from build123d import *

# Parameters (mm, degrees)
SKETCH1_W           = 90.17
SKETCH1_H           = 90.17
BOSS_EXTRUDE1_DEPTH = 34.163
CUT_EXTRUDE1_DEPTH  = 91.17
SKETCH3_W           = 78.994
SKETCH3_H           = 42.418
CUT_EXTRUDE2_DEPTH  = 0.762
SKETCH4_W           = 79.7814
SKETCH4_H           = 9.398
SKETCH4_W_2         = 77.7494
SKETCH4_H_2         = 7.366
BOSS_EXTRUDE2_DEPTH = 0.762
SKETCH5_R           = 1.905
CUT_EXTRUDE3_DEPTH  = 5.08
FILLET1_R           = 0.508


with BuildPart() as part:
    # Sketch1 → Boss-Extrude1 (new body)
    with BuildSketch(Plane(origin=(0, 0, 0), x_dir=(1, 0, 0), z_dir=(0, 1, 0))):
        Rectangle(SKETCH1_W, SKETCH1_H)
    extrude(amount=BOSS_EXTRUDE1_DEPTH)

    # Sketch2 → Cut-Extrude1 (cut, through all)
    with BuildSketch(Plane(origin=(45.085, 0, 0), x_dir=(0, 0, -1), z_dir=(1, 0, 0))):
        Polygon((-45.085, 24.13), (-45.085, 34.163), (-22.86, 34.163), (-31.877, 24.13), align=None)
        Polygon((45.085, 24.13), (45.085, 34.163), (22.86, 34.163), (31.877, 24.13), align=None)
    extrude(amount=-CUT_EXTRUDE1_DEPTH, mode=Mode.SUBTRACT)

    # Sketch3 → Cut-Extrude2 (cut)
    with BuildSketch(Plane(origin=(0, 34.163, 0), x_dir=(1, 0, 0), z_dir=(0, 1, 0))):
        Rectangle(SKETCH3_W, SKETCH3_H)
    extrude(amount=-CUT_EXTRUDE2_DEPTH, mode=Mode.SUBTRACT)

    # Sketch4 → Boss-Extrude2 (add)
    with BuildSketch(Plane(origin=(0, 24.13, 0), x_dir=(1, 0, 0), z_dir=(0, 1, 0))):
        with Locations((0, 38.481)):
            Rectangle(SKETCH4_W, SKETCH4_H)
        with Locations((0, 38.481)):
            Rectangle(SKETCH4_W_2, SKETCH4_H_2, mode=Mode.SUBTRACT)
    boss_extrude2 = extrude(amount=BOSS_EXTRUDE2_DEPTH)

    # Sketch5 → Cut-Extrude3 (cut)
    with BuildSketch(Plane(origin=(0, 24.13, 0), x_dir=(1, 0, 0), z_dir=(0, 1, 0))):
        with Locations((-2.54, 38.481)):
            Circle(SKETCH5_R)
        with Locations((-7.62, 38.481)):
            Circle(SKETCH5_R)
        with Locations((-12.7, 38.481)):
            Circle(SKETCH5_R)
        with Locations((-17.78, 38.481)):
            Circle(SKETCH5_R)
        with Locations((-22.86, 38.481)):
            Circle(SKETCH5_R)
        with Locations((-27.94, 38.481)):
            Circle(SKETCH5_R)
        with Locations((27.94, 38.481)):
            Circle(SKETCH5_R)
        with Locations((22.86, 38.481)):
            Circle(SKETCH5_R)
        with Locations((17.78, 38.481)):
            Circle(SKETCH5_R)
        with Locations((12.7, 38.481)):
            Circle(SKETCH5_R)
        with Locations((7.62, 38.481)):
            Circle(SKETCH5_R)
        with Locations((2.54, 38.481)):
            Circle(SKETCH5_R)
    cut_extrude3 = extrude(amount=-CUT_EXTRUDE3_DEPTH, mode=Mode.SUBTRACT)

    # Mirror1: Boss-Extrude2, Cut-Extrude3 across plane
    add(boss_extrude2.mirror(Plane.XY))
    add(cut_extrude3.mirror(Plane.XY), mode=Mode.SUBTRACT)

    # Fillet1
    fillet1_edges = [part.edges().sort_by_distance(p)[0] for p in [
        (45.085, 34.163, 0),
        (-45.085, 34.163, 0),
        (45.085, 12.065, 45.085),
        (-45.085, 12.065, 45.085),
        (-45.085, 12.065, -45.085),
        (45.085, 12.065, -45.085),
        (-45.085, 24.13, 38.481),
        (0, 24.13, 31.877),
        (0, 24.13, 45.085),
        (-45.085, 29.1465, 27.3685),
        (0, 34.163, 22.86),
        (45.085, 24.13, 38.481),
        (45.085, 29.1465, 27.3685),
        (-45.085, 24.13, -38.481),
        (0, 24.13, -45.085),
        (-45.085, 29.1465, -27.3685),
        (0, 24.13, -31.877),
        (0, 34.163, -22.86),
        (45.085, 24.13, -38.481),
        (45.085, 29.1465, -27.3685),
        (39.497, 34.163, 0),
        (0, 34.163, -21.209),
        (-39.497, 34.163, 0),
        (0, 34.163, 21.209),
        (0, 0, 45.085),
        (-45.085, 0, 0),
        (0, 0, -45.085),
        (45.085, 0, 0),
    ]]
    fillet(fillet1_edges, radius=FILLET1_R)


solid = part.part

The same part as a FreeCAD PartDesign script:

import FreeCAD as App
import Part
import Sketcher
Q = App.Units.Quantity


def edges_at(feature, points):
    """Names of the edges that pass closest to the given points."""
    edges = feature.Shape.Edges
    near = lambda p: min(range(len(edges)), key=lambda i: edges[i].distToShape(Part.Vertex(*p))[0])
    return sorted({f"Edge{near(p) + 1}" for p in points})


def add_polygon(sketch, points):
    """Adds a closed chain of lines whose ends are joined by coincident constraints."""
    first, n = sketch.GeometryCount, len(points)
    for a, b in zip(points, points[1:] + points[:1]):
        sketch.addGeometry(Part.LineSegment(App.Vector(*a, 0), App.Vector(*b, 0)), False)
    for i in range(n):
        sketch.addConstraint(Sketcher.Constraint("Coincident", first + i, 2, first + (i + 1) % n, 1))

doc = App.newDocument("Part")
body = doc.addObject("PartDesign::Body", "Body")

# Sketch on XZ plane
sketch1 = doc.addObject("Sketcher::SketchObject", "Sketch")
body.addObject(sketch1)
sketch1.AttachmentSupport = (doc.XZ_Plane, [""])
sketch1.MapMode = "FlatFace"
add_polygon(sketch1, [(-45, -45), (-45, 45), (45, 45), (45, -45)])  # lines 0-3
sketch1.addConstraint([
    Sketcher.Constraint("Vertical", 0),
    Sketcher.Constraint("Horizontal", 1),
    Sketcher.Constraint("Vertical", 2),
    Sketcher.Constraint("Horizontal", 3),
    Sketcher.Constraint("Symmetric", 0, 2, 2, 2, -1, 1),
    Sketcher.Constraint("Equal", 3, 0),
    Sketcher.Constraint("DistanceX", 1, 1, 1, 2, Q("3.55 in")),
])
pad1 = doc.addObject("PartDesign::Pad", "Pad")
body.addObject(pad1)
pad1.Profile = sketch1
pad1.Length = Q("1.345 in")
pad1.Reversed = True

# Sketch on YZ plane
sketch2 = doc.addObject("Sketcher::SketchObject", "Sketch001")
body.addObject(sketch2)
sketch2.AttachmentSupport = (doc.YZ_Plane, [""])
sketch2.MapMode = "FlatFace"
sketch2.AttachmentOffset = App.Placement(App.Vector(0, 0, 1.775 * 25.4), App.Rotation())
add_polygon(sketch2, [(34, 45), (24, 45), (24, 32), (34, 23)])  # lines 0-3
add_polygon(sketch2, [(24, -45), (34, -45), (34, -23), (24, -32)])  # lines 4-7
sketch2.addConstraint([
    Sketcher.Constraint("Horizontal", 0),
    Sketcher.Constraint("Vertical", 1),
    Sketcher.Constraint("Vertical", 3),
    Sketcher.Constraint("Horizontal", 4),
    Sketcher.Constraint("Vertical", 5),
    Sketcher.Constraint("Vertical", 7),
    Sketcher.Constraint("Symmetric", 3, 2, 4, 2, -1),
    Sketcher.Constraint("Symmetric", 1, 2, 6, 2, -1),
    Sketcher.Constraint("Equal", 3, 5),
    Sketcher.Constraint("DistanceY", 1, 2, 1, 1, Q("0.52 in")),
    Sketcher.Constraint("DistanceY", -1, 1, 2, 2, Q("0.9 in")),
    Sketcher.Constraint("DistanceX", 0, 2, 0, 1, Q("0.395 in")),
    Sketcher.Constraint("DistanceY", 3, 1, 3, 2, Q("0.875 in")),
    Sketcher.Constraint("DistanceX", -1, 1, 0, 2, Q("0.95 in")),
])
pocket1 = doc.addObject("PartDesign::Pocket", "Pocket")
body.addObject(pocket1)
pocket1.Profile = sketch2
pocket1.Type = "ThroughAll"

# Sketch on XZ plane
sketch3 = doc.addObject("Sketcher::SketchObject", "Sketch002")
body.addObject(sketch3)
sketch3.AttachmentSupport = (doc.XZ_Plane, [""])
sketch3.MapMode = "FlatFace"
sketch3.AttachmentOffset = App.Placement(App.Vector(0, 0, -1.345 * 25.4), App.Rotation())
add_polygon(sketch3, [(-39, -21), (-39, 21), (39, 21), (39, -21)])  # lines 0-3
sketch3.addConstraint([
    Sketcher.Constraint("Vertical", 0),
    Sketcher.Constraint("Horizontal", 1),
    Sketcher.Constraint("Vertical", 2),
    Sketcher.Constraint("Horizontal", 3),
    Sketcher.Constraint("Symmetric", 0, 2, 2, 2, -1, 1),
    Sketcher.Constraint("DistanceX", 1, 1, 1, 2, Q("3.11 in")),
    Sketcher.Constraint("DistanceY", 0, 1, 0, 2, Q("1.67 in")),
])
pocket2 = doc.addObject("PartDesign::Pocket", "Pocket001")
body.addObject(pocket2)
pocket2.Profile = sketch3
pocket2.Length = Q("0.03 in")
pocket2.Reversed = True

# Sketch on XZ plane
sketch4 = doc.addObject("Sketcher::SketchObject", "Sketch003")
body.addObject(sketch4)
sketch4.AttachmentSupport = (doc.XZ_Plane, [""])
sketch4.MapMode = "FlatFace"
sketch4.AttachmentOffset = App.Placement(App.Vector(0, 0, -0.95 * 25.4), App.Rotation())
add_polygon(sketch4, [(-40, -43), (-40, -34), (40, -34), (40, -43)])  # lines 0-3
add_polygon(sketch4, [(39, -35), (-39, -35), (-39, -42), (39, -42)])  # lines 4-7
sketch4.addConstraint([
    Sketcher.Constraint("Vertical", 0),
    Sketcher.Constraint("Horizontal", 1),
    Sketcher.Constraint("Vertical", 2),
    Sketcher.Constraint("Horizontal", 3),
    Sketcher.Constraint("Horizontal", 4),
    Sketcher.Constraint("Vertical", 5),
    Sketcher.Constraint("Horizontal", 6),
    Sketcher.Constraint("Vertical", 7),
    Sketcher.Constraint("DistanceY", 0, 1, 0, 2, Q("0.37 in")),
    Sketcher.Constraint("DistanceY", 5, 2, 5, 1, Q("0.29 in")),
    Sketcher.Constraint("DistanceY", 2, 2, -1, 1, Q("1.7 in")),
    Sketcher.Constraint("DistanceX", 1, 1, 1, 2, Q("3.141 in")),
    Sketcher.Constraint("DistanceX", 4, 2, 4, 1, Q("3.061 in")),
    Sketcher.Constraint("DistanceY", 4, 2, -1, 1, Q("1.37 in")),
    Sketcher.Constraint("DistanceX", 0, 2, 4, 2, Q("0.04 in")),
    Sketcher.Constraint("DistanceX", 0, 2, -1, 1, Q("1.5705 in")),
])
pad2 = doc.addObject("PartDesign::Pad", "Pad001")
body.addObject(pad2)
pad2.Profile = sketch4
pad2.Length = Q("0.03 in")
pad2.Reversed = True

# Sketch on XZ plane
sketch5 = doc.addObject("Sketcher::SketchObject", "Sketch004")
body.addObject(sketch5)
sketch5.AttachmentSupport = (doc.XZ_Plane, [""])
sketch5.MapMode = "FlatFace"
sketch5.AttachmentOffset = App.Placement(App.Vector(0, 0, -0.95 * 25.4), App.Rotation())
sketch5.addGeometry([
    Part.Circle(App.Vector(-2.5, -38.5, 0), App.Vector(0, 0, 1), 1.9),  # 0
    Part.Circle(App.Vector(-7.6, -38.5, 0), App.Vector(0, 0, 1), 1.9),  # 1
    Part.Circle(App.Vector(-12.7, -38.5, 0), App.Vector(0, 0, 1), 1.9),  # 2
    Part.Circle(App.Vector(-17.8, -38.5, 0), App.Vector(0, 0, 1), 1.9),  # 3
    Part.Circle(App.Vector(-22.9, -38.5, 0), App.Vector(0, 0, 1), 1.9),  # 4
    Part.Circle(App.Vector(-27.9, -38.5, 0), App.Vector(0, 0, 1), 1.9),  # 5
    Part.Circle(App.Vector(27.9, -38.5, 0), App.Vector(0, 0, 1), 1.9),  # 6
    Part.Circle(App.Vector(22.9, -38.5, 0), App.Vector(0, 0, 1), 1.9),  # 7
    Part.Circle(App.Vector(17.8, -38.5, 0), App.Vector(0, 0, 1), 1.9),  # 8
    Part.Circle(App.Vector(12.7, -38.5, 0), App.Vector(0, 0, 1), 1.9),  # 9
    Part.Circle(App.Vector(7.6, -38.5, 0), App.Vector(0, 0, 1), 1.9),  # 10
    Part.Circle(App.Vector(2.5, -38.5, 0), App.Vector(0, 0, 1), 1.9),  # 11
], False)
sketch5.addConstraint([
    Sketcher.Constraint("Equal", 0, 1),
    Sketcher.Constraint("Equal", 1, 2),
    Sketcher.Constraint("Equal", 2, 3),
    Sketcher.Constraint("Equal", 3, 4),
    Sketcher.Constraint("Equal", 4, 5),
    Sketcher.Constraint("Equal", 5, 6),
    Sketcher.Constraint("Equal", 6, 7),
    Sketcher.Constraint("Equal", 7, 8),
    Sketcher.Constraint("Equal", 8, 9),
    Sketcher.Constraint("Equal", 9, 10),
    Sketcher.Constraint("Equal", 10, 11),
    Sketcher.Constraint("Symmetric", 5, 3, 6, 3, -2),
    Sketcher.Constraint("Symmetric", 4, 3, 7, 3, -2),
    Sketcher.Constraint("Symmetric", 3, 3, 8, 3, -2),
    Sketcher.Constraint("Symmetric", 2, 3, 9, 3, -2),
    Sketcher.Constraint("Symmetric", 1, 3, 10, 3, -2),
    Sketcher.Constraint("Symmetric", 0, 3, 11, 3, -2),
    Sketcher.Constraint("Horizontal", 0, 3, 1, 3),
    Sketcher.Constraint("Horizontal", 1, 3, 2, 3),
    Sketcher.Constraint("Horizontal", 2, 3, 3, 3),
    Sketcher.Constraint("Horizontal", 3, 3, 4, 3),
    Sketcher.Constraint("Horizontal", 4, 3, 5, 3),
    Sketcher.Constraint("Diameter", 0, Q("0.15 in")),
    Sketcher.Constraint("DistanceX", 5, 3, 0, 3, Q("1 in")),
    Sketcher.Constraint("DistanceX", 4, 3, 6, 3, Q("2 in")),
    Sketcher.Constraint("DistanceX", 1, 3, 8, 3, Q("1 in")),
    Sketcher.Constraint("DistanceX", 0, 3, -1, 1, Q("0.1 in")),
    Sketcher.Constraint("DistanceX", 1, 3, -1, 1, Q("0.3 in")),
    Sketcher.Constraint("DistanceX", 2, 3, -1, 1, Q("0.5 in")),
    Sketcher.Constraint("DistanceY", 0, 3, -1, 1, Q("1.515 in")),
])
pocket3 = doc.addObject("PartDesign::Pocket", "Pocket002")
body.addObject(pocket3)
pocket3.Profile = sketch5
pocket3.Length = Q("0.2 in")
pocket3.Reversed = True
doc.recompute()

mirrored = doc.addObject("PartDesign::Mirrored", "Mirrored")
body.addObject(mirrored)
mirrored.Originals = [pad2, pocket3]
mirrored.MirrorPlane = (doc.XY_Plane, [""])
body.Tip = mirrored
doc.recompute()

fillet = doc.addObject("PartDesign::Fillet", "Fillet")
body.addObject(fillet)
fillet.Base = (mirrored, edges_at(mirrored, [
    (45.085, 34.163, 0),
    (-45.085, 34.163, 0),
    (45.085, 12.065, 45.085),
    (-45.085, 12.065, 45.085),
    (-45.085, 12.065, -45.085),
    (45.085, 12.065, -45.085),
    (-45.085, 24.13, 38.481),
    (0, 24.13, 31.877),
    (0, 24.13, 45.085),
    (-45.085, 29.146, 27.369),
    (0, 34.163, 22.86),
    (45.085, 24.13, 38.481),
    (45.085, 29.146, 27.369),
    (-45.085, 24.13, -38.481),
    (0, 24.13, -45.085),
    (-45.085, 29.146, -27.369),
    (0, 24.13, -31.877),
    (0, 34.163, -22.86),
    (45.085, 24.13, -38.481),
    (45.085, 29.146, -27.369),
    (39.497, 34.163, 0),
    (0, 34.163, -21.209),
    (-39.497, 34.163, 0),
    (0, 34.163, 21.209),
    (0, 0, 45.085),
    (-45.085, 0, 0),
    (0, 0, -45.085),
    (45.085, 0, 0),
]))
fillet.Radius = Q("0.02 in")

doc.recompute()
